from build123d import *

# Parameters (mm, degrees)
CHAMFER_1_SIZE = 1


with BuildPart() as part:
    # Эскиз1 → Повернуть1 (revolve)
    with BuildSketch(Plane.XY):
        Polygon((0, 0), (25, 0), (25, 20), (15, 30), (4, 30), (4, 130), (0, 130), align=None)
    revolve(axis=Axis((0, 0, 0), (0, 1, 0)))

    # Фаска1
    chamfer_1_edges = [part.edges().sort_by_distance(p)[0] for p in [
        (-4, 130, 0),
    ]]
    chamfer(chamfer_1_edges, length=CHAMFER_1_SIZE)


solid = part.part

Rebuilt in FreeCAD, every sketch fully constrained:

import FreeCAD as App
import Part
import Sketcher
Q = App.Units.Quantity


def edges_at(feature, points):
    """Names of the edges that pass closest to the given points."""
    edges = feature.Shape.Edges
    near = lambda p: min(range(len(edges)), key=lambda i: edges[i].distToShape(Part.Vertex(*p))[0])
    return sorted({f"Edge{near(p) + 1}" for p in points})

doc = App.newDocument("Part")
body = doc.addObject("PartDesign::Body", "Body")

# Sketch on XY plane
sketch1 = body.newObject("Sketcher::SketchObject", "Sketch")
sketch1.AttachmentSupport = (doc.getObject("XY_Plane"), [""])
sketch1.MapMode = "FlatFace"
sketch1.addGeometry([
    Part.LineSegment(App.Vector(0, 0, 0), App.Vector(25, 0, 0)),  # 0
    Part.LineSegment(App.Vector(25, 0, 0), App.Vector(25, 20, 0)),  # 1
    Part.LineSegment(App.Vector(25, 20, 0), App.Vector(15, 30, 0)),  # 2
    Part.LineSegment(App.Vector(15, 30, 0), App.Vector(4, 30, 0)),  # 3
    Part.LineSegment(App.Vector(4, 30, 0), App.Vector(4, 130, 0)),  # 4
    Part.LineSegment(App.Vector(4, 130, 0), App.Vector(0, 130, 0)),  # 5
    Part.LineSegment(App.Vector(0, 130, 0), App.Vector(0, 0, 0)),  # 6
], False)
sketch1.addConstraint([
    Sketcher.Constraint("Coincident", 0, 2, 1, 1),
    Sketcher.Constraint("Coincident", 1, 2, 2, 1),
    Sketcher.Constraint("Coincident", 2, 2, 3, 1),
    Sketcher.Constraint("Coincident", 3, 2, 4, 1),
    Sketcher.Constraint("Coincident", 4, 2, 5, 1),
    Sketcher.Constraint("Coincident", 5, 2, 6, 1),
    Sketcher.Constraint("Coincident", 6, 2, 0, 1),
    Sketcher.Constraint("Horizontal", 0),
    Sketcher.Constraint("Vertical", 1),
    Sketcher.Constraint("Horizontal", 3),
    Sketcher.Constraint("Vertical", 4),
    Sketcher.Constraint("Horizontal", 5),
    Sketcher.Constraint("Vertical", 6),
    Sketcher.Constraint("Coincident", 6, 2, -1, 1),
    Sketcher.Constraint("DistanceX", 0, 1, 0, 2, Q("25 mm")),
    Sketcher.Constraint("DistanceX", 3, 2, 3, 1, Q("11 mm")),
    Sketcher.Constraint("DistanceX", 5, 2, 5, 1, Q("4 mm")),
    Sketcher.Constraint("DistanceY", 1, 1, 1, 2, Q("20 mm")),
    Sketcher.Constraint("DistanceY", 4, 1, 4, 2, Q("100 mm")),
    Sketcher.Constraint("DistanceY", 6, 2, 6, 1, Q("130 mm")),
])
revolution = body.newObject("PartDesign::Revolution", "Revolution")
revolution.Profile = sketch1
revolution.ReferenceAxis = (sketch1, ["V_Axis"])
revolution.Angle = 360
doc.recompute()

chamfer = body.newObject("PartDesign::Chamfer", "Chamfer")
chamfer.Base = (revolution, edges_at(revolution, [(-4, 130, 0)]))
chamfer.Size = 1

doc.recompute()
